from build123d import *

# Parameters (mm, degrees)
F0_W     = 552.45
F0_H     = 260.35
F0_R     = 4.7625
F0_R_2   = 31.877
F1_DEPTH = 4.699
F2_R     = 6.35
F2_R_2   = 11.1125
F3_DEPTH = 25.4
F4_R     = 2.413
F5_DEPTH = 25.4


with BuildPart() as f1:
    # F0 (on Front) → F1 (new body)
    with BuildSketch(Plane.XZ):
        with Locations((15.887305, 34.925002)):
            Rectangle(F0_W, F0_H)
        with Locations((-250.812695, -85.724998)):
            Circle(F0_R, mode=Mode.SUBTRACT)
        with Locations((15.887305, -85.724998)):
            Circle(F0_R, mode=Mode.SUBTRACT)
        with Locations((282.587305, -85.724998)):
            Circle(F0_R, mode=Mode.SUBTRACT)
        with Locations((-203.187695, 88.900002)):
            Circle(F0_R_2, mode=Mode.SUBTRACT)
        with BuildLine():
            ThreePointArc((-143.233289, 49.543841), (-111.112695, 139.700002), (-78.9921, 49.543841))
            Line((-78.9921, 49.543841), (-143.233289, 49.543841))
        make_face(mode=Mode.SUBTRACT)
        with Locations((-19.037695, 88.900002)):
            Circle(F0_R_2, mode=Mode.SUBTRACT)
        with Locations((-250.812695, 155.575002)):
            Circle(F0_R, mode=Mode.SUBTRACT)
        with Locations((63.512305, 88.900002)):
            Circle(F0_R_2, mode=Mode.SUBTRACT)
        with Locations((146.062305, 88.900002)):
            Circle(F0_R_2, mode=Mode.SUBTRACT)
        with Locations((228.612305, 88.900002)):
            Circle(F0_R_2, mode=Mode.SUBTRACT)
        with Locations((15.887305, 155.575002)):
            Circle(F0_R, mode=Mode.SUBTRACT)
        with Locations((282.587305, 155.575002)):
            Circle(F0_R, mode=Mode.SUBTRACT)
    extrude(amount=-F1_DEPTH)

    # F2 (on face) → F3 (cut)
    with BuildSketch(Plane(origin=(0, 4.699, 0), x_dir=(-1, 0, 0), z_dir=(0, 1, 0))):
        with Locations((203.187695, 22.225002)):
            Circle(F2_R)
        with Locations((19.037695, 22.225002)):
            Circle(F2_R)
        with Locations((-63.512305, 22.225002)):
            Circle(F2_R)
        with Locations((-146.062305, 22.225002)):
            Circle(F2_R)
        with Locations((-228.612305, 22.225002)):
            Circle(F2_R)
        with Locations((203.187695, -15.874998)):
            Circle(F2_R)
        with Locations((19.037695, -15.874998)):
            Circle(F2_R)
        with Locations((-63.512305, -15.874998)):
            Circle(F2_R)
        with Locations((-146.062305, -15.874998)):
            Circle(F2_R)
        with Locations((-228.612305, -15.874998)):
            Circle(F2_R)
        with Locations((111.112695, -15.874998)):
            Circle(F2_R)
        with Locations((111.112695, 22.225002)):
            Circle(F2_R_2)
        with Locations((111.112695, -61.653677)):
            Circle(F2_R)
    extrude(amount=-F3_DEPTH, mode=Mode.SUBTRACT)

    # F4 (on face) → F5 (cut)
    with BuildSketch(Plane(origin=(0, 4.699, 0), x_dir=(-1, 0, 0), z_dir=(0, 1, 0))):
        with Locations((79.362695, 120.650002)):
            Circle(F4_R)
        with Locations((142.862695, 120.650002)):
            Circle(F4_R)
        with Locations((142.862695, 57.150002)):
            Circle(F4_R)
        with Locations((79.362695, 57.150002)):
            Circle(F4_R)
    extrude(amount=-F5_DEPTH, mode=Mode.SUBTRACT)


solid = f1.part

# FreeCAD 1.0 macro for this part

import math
import FreeCAD as App
import Part
import Sketcher

V = App.Vector
Q = App.Units.Quantity


def add_polygon(sketch, points):
    """Adds a closed chain of lines whose ends are joined by coincident constraints."""
    first, n = sketch.GeometryCount, len(points)
    for a, b in zip(points, points[1:] + points[:1]):
        sketch.addGeometry(Part.LineSegment(App.Vector(*a, 0), App.Vector(*b, 0)), False)
    for i in range(n):
        sketch.addConstraint(Sketcher.Constraint("Coincident", first + i, 2, first + (i + 1) % n, 1))

doc = App.newDocument("Part")
body = doc.addObject("PartDesign::Body", "Body")

sketch1 = doc.addObject("Sketcher::SketchObject", "Sketch")
body.addObject(sketch1)
sketch1.AttachmentSupport = (doc.XZ_Plane, [""])
sketch1.MapMode = "FlatFace"
add_polygon(sketch1, [(-260.3, 165.1), (-260.3, -95.2), (292.1, -95.2), (292.1, 165.1)])
sketch1.addGeometry(Part.Circle(V(-250.8, -85.7, 0), V(0, 0, 1), 4.8), False)
sketch1.addGeometry(Part.Circle(V(15.9, -85.7, 0), V(0, 0, 1), 4.8), False)
sketch1.addGeometry(Part.Circle(V(282.6, -85.7, 0), V(0, 0, 1), 4.8), False)
sketch1.addGeometry(Part.Circle(V(-203.2, 88.9, 0), V(0, 0, 1), 31.9), False)
sketch1.addGeometry(Part.LineSegment(V(-79, 49.5, 0), V(-143.2, 49.5, 0)), False)
sketch1.addGeometry(Part.ArcOfCircle(Part.Circle(V(-111.1, 88.9, 0), V(0, 0, 1), 50.8), math.radians(-51), math.radians(231)), False)
sketch1.addGeometry(Part.Circle(V(-19, 88.9, 0), V(0, 0, 1), 31.9), False)
sketch1.addGeometry(Part.Circle(V(-250.8, 155.6, 0), V(0, 0, 1), 4.8), False)
sketch1.addGeometry(Part.Circle(V(63.5, 88.9, 0), V(0, 0, 1), 31.9), False)
sketch1.addGeometry(Part.Circle(V(146.1, 88.9, 0), V(0, 0, 1), 31.9), False)
sketch1.addGeometry(Part.Circle(V(228.6, 88.9, 0), V(0, 0, 1), 31.9), False)
sketch1.addGeometry(Part.Circle(V(15.9, 155.6, 0), V(0, 0, 1), 4.8), False)
sketch1.addGeometry(Part.Circle(V(282.6, 155.6, 0), V(0, 0, 1), 4.8), False)
sketch1.addConstraint([
    Sketcher.Constraint("Coincident", 8, 1, 9, 1),
    Sketcher.Constraint("Coincident", 9, 2, 8, 2),
    Sketcher.Constraint("Vertical", 0),
    Sketcher.Constraint("Horizontal", 1),
    Sketcher.Constraint("Vertical", 2),
    Sketcher.Constraint("Horizontal", 3),
    Sketcher.Constraint("Horizontal", 8),
    Sketcher.Constraint("Equal", 4, 5),
    Sketcher.Constraint("Equal", 5, 6),
    Sketcher.Constraint("Equal", 7, 10),
    Sketcher.Constraint("Equal", 6, 11),
    Sketcher.Constraint("Equal", 10, 12),
    Sketcher.Constraint("Equal", 12, 13),
    Sketcher.Constraint("Equal", 13, 14),
    Sketcher.Constraint("Equal", 11, 15),
    Sketcher.Constraint("Equal", 15, 16),
    Sketcher.Constraint("Horizontal", 4, 3, 5, 3),
    Sketcher.Constraint("Horizontal", 5, 3, 6, 3),
    Sketcher.Constraint("Horizontal", 7, 3, 9, 3),
    Sketcher.Constraint("Horizontal", 9, 3, 10, 3),
    Sketcher.Constraint("Horizontal", 10, 3, 12, 3),
    Sketcher.Constraint("Horizontal", 12, 3, 13, 3),
    Sketcher.Constraint("Horizontal", 13, 3, 14, 3),
    Sketcher.Constraint("Horizontal", 11, 3, 15, 3),
    Sketcher.Constraint("Horizontal", 15, 3, 16, 3),
    Sketcher.Constraint("Vertical", 4, 3, 11, 3),
    Sketcher.Constraint("Vertical", 5, 3, 15, 3),
    Sketcher.Constraint("Vertical", 6, 3, 16, 3),
    Sketcher.Constraint("Radius", 9, Q("2 in")),
    Sketcher.Constraint("Diameter", 7, Q("2.51 in")),
    Sketcher.Constraint("Diameter", 4, Q("0.375 in")),
    Sketcher.Constraint("DistanceX", 4, 3, 6, 3, Q("21 in")),
    Sketcher.Constraint("DistanceX", 9, 3, 5, 3, Q("5 in")),
    Sketcher.Constraint("DistanceY", 14, 3, 2, 2, Q("3 in")),
    Sketcher.Constraint("DistanceX", 12, 3, 2, 2, Q("9 in")),
    Sketcher.Constraint("DistanceX", 1, 1, 1, 2, Q("21.75 in")),
    Sketcher.Constraint("DistanceY", 0, 2, 0, 1, Q("10.25 in")),
    Sketcher.Constraint("DistanceY", -1, 1, 7, 3, Q("3.5000001 in")),
    Sketcher.Constraint("DistanceX", 4, 3, 5, 3, Q("10.5 in")),
    Sketcher.Constraint("DistanceY", 4, 3, 11, 3, Q("9.5 in")),
    Sketcher.Constraint("DistanceX", 7, 3, 12, 3, Q("10.5 in")),
    Sketcher.Constraint("DistanceX", 10, 3, 13, 3, Q("6.5 in")),
    Sketcher.Constraint("DistanceX", 12, 3, 14, 3, Q("6.5 in")),
    Sketcher.Constraint("DistanceX", 3, 2, 10, 3, Q("9.5 in")),
    Sketcher.Constraint("DistanceY", 4, 3, -1, 1, Q("3.3749999 in")),
    Sketcher.Constraint("DistanceX", 4, 3, 7, 3, Q("1.875 in")),
    Sketcher.Constraint("DistanceX", 8, 2, 8, 1, Q("64.241189 mm")),
    Sketcher.Constraint("DistanceX", 8, 1, -1, 1, Q("78.9921 mm")),
])
pad1 = doc.addObject("PartDesign::Pad", "Pad")
body.addObject(pad1)
pad1.Profile = sketch1
pad1.Length = Q("0.185 in")
pad1.Reversed = True

sketch2 = doc.addObject("Sketcher::SketchObject", "Sketch001")
body.addObject(sketch2)
sketch2.AttachmentSupport = (doc.XZ_Plane, [""])
sketch2.MapMode = "FlatFace"
sketch2.AttachmentOffset = App.Placement(V(0, 0, -0.185 * 25.4), App.Rotation())
sketch2.addGeometry([
    Part.Circle(V(-203, 22, 0), V(0, 0, 1), 6),
    Part.Circle(V(-19, 22, 0), V(0, 0, 1), 6),
    Part.Circle(V(64, 22, 0), V(0, 0, 1), 6),
    Part.Circle(V(146, 22, 0), V(0, 0, 1), 6),
    Part.Circle(V(229, 22, 0), V(0, 0, 1), 6),
    Part.Circle(V(-203, -16, 0), V(0, 0, 1), 6),
    Part.Circle(V(-19, -16, 0), V(0, 0, 1), 6),
    Part.Circle(V(64, -16, 0), V(0, 0, 1), 6),
    Part.Circle(V(146, -16, 0), V(0, 0, 1), 6),
    Part.Circle(V(229, -16, 0), V(0, 0, 1), 6),
    Part.Circle(V(-111, -16, 0), V(0, 0, 1), 6),
    Part.Circle(V(-111, 22, 0), V(0, 0, 1), 11),
    Part.Circle(V(-111, -62, 0), V(0, 0, 1), 6),
], False)
sketch2.addConstraint([
    Sketcher.Constraint("Equal", 0, 1),
    Sketcher.Constraint("Equal", 1, 2),
    Sketcher.Constraint("Equal", 2, 3),
    Sketcher.Constraint("Equal", 3, 4),
    Sketcher.Constraint("Equal", 4, 5),
    Sketcher.Constraint("Equal", 5, 6),
    Sketcher.Constraint("Equal", 6, 7),
    Sketcher.Constraint("Equal", 7, 8),
    Sketcher.Constraint("Equal", 8, 9),
    Sketcher.Constraint("Equal", 9, 10),
    Sketcher.Constraint("Equal", 10, 12),
    Sketcher.Constraint("Horizontal", 0, 3, 1, 3),
    Sketcher.Constraint("Horizontal", 1, 3, 2, 3),
    Sketcher.Constraint("Horizontal", 2, 3, 3, 3),
    Sketcher.Constraint("Horizontal", 3, 3, 4, 3),
    Sketcher.Constraint("Horizontal", 5, 3, 6, 3),
    Sketcher.Constraint("Horizontal", 6, 3, 7, 3),
    Sketcher.Constraint("Horizontal", 7, 3, 8, 3),
    Sketcher.Constraint("Horizontal", 8, 3, 9, 3),
    Sketcher.Constraint("Horizontal", 9, 3, 10, 3),
    Sketcher.Constraint("Horizontal", 4, 3, 11, 3),
    Sketcher.Constraint("Vertical", 0, 3, 5, 3),
    Sketcher.Constraint("Vertical", 1, 3, 6, 3),
    Sketcher.Constraint("Vertical", 2, 3, 7, 3),
    Sketcher.Constraint("Vertical", 3, 3, 8, 3),
    Sketcher.Constraint("Vertical", 4, 3, 9, 3),
    Sketcher.Constraint("Vertical", 10, 3, 11, 3),
    Sketcher.Constraint("Vertical", 11, 3, 12, 3),
    Sketcher.Constraint("Diameter", 0, Q("0.5 in")),
    Sketcher.Constraint("Diameter", 11, Q("0.875 in")),
    Sketcher.Constraint("DistanceX", 0, 3, 4, 3, Q("17 in")),
    Sketcher.Constraint("DistanceX", 0, 3, 2, 3, Q("10.5 in")),
    Sketcher.Constraint("DistanceX", 1, 3, 3, 3, Q("6.5 in")),
    Sketcher.Constraint("DistanceY", 5, 3, 0, 3, Q("1.5 in")),
    Sketcher.Constraint("DistanceX", 0, 3, 1, 3, Q("7.25 in")),
    Sketcher.Constraint("DistanceY", -1, 1, 0, 3, Q("0.8750001 in")),
    Sketcher.Constraint("DistanceX", 5, 3, 10, 3, Q("3.625 in")),
    Sketcher.Constraint("DistanceY", 12, 3, 10, 3, Q("45.778679 mm")),
    Sketcher.Constraint("DistanceX", 0, 3, -1, 1, Q("203.187695 mm")),
])
pocket1 = doc.addObject("PartDesign::Pocket", "Pocket")
body.addObject(pocket1)
pocket1.Profile = sketch2
pocket1.Length = Q("1 in")
pocket1.Reversed = True

sketch3 = doc.addObject("Sketcher::SketchObject", "Sketch002")
body.addObject(sketch3)
sketch3.AttachmentSupport = (doc.XZ_Plane, [""])
sketch3.MapMode = "FlatFace"
sketch3.AttachmentOffset = App.Placement(V(0, 0, -0.185 * 25.4), App.Rotation())
sketch3.addGeometry([
    Part.Circle(V(-79.4, 120.7, 0), V(0, 0, 1), 2.4),
    Part.Circle(V(-142.9, 120.7, 0), V(0, 0, 1), 2.4),
    Part.Circle(V(-142.9, 57.2, 0), V(0, 0, 1), 2.4),
    Part.Circle(V(-79.4, 57.2, 0), V(0, 0, 1), 2.4),
], False)
sketch3.addConstraint([
    Sketcher.Constraint("Equal", 0, 1),
    Sketcher.Constraint("Equal", 1, 2),
    Sketcher.Constraint("Equal", 2, 3),
    Sketcher.Constraint("Horizontal", 0, 3, 1, 3),
    Sketcher.Constraint("Horizontal", 2, 3, 3, 3),
    Sketcher.Constraint("Vertical", 1, 3, 2, 3),
    Sketcher.Constraint("Vertical", 0, 3, 3, 3),
    Sketcher.Constraint("Diameter", 0, Q("0.19 in")),
    Sketcher.Constraint("DistanceX", 1, 3, 0, 3, Q("2.5 in")),
    Sketcher.Constraint("DistanceY", 2, 3, 1, 3, Q("2.5 in")),
    Sketcher.Constraint("DistanceY", -1, 1, 0, 3, Q("4.7500001 in")),
    Sketcher.Constraint("DistanceX", 0, 3, -1, 1, Q("79.362695 mm")),
])
pocket2 = doc.addObject("PartDesign::Pocket", "Pocket001")
body.addObject(pocket2)
pocket2.Profile = sketch3
pocket2.Length = Q("1 in")
pocket2.Reversed = True

doc.recompute()
